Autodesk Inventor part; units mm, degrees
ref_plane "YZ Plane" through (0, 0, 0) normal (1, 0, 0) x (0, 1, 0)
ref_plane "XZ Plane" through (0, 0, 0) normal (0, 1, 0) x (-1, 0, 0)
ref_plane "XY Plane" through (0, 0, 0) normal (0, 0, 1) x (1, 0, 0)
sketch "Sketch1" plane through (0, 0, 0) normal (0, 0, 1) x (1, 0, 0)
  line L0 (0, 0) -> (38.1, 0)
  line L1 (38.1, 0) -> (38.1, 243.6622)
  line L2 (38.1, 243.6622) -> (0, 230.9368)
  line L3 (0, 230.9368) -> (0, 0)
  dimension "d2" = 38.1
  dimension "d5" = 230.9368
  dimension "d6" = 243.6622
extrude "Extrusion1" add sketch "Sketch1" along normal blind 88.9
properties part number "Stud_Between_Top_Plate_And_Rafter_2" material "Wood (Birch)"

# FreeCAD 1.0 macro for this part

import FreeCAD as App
import Part
import Sketcher
Q = App.Units.Quantity


def add_polygon(sketch, points):
    """Adds a closed chain of lines whose ends are joined by coincident constraints."""
    first, n = sketch.GeometryCount, len(points)
    for a, b in zip(points, points[1:] + points[:1]):
        sketch.addGeometry(Part.LineSegment(App.Vector(*a, 0), App.Vector(*b, 0)), False)
    for i in range(n):
        sketch.addConstraint(Sketcher.Constraint("Coincident", first + i, 2, first + (i + 1) % n, 1))

doc = App.newDocument("Part")
body = doc.addObject("PartDesign::Body", "Body")

sketch1 = body.newObject("Sketcher::SketchObject", "Sketch")
sketch1.AttachmentSupport = (doc.getObject("XY_Plane"), [""])
sketch1.MapMode = "FlatFace"
add_polygon(sketch1, [(0, 231), (0, 0), (38, 0), (38, 244)])
sketch1.addConstraint([
    Sketcher.Constraint("Vertical", 0),
    Sketcher.Constraint("Horizontal", 1),
    Sketcher.Constraint("Vertical", 2),
    Sketcher.Constraint("Coincident", 0, 2, -1, 1),
    Sketcher.Constraint("DistanceX", 1, 1, 1, 2, Q("1.5 in")),
    Sketcher.Constraint("DistanceY", 0, 2, 0, 1, Q("9.092 in")),
    Sketcher.Constraint("DistanceY", 2, 1, 2, 2, Q("9.593 in")),
])
pad1 = body.newObject("PartDesign::Pad", "Pad")
pad1.Profile = sketch1
pad1.Length = Q("3.5 in")

doc.recompute()
